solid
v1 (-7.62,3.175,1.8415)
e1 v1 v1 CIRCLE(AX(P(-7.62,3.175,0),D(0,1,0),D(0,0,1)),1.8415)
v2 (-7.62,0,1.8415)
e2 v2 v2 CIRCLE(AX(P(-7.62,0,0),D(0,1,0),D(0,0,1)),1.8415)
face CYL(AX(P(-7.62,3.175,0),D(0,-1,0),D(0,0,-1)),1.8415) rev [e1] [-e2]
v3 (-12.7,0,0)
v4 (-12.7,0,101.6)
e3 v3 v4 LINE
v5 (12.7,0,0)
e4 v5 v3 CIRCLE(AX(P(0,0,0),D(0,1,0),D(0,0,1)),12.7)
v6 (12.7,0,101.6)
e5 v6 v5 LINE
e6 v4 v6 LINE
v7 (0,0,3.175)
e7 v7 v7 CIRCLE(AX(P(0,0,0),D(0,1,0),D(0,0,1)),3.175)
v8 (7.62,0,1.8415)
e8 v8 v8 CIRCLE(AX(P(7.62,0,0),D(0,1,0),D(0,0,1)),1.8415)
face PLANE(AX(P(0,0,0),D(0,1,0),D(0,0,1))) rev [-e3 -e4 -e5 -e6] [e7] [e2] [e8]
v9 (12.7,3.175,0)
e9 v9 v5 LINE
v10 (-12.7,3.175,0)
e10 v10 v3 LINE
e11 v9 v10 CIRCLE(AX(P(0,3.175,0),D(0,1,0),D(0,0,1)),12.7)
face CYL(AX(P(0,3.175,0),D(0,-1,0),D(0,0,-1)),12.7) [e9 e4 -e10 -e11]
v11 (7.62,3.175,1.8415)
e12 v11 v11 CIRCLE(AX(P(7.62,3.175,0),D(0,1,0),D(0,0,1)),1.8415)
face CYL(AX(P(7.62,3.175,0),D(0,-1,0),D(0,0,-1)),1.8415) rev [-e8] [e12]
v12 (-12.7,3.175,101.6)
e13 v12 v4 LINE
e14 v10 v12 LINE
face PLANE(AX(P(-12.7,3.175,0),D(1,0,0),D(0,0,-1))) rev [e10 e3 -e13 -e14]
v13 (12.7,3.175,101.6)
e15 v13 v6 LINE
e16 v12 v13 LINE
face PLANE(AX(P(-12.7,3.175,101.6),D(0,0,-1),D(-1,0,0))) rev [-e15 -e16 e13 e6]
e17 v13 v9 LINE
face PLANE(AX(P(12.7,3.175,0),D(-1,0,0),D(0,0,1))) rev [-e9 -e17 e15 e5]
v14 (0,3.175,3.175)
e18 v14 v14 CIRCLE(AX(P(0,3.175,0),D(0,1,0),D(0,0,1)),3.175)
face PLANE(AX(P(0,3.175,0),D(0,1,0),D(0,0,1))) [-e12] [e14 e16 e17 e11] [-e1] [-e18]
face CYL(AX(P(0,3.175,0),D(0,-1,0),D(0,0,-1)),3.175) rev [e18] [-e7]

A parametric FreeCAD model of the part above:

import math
import FreeCAD as App
import Part
import Sketcher

V = App.Vector
Q = App.Units.Quantity

doc = App.newDocument("Part")
body = doc.addObject("PartDesign::Body", "Body")

# Sketch on XZ plane
sketch1 = doc.addObject("Sketcher::SketchObject", "Sketch")
body.addObject(sketch1)
sketch1.AttachmentSupport = (doc.XZ_Plane, [""])
sketch1.MapMode = "FlatFace"
sketch1.addGeometry([
    Part.LineSegment(V(-12.7, 0, 0), V(-12.7, 101.6, 0)),  # 0
    Part.LineSegment(V(-12.7, 101.6, 0), V(12.7, 101.6, 0)),  # 1
    Part.LineSegment(V(12.7, 101.6, 0), V(12.7, 0, 0)),  # 2
    Part.ArcOfCircle(Part.Circle(V(0, 0, 0), V(0, 0, 1), 12.7), math.radians(180), math.radians(360)),  # 3
    Part.Circle(V(-7.6, 0, 0), V(0, 0, 1), 1.8),  # 4
    Part.Circle(V(0, 0, 0), V(0, 0, 1), 3.2),  # 5
    Part.Circle(V(7.6, 0, 0), V(0, 0, 1), 1.8),  # 6
], False)
sketch1.addConstraint([
    Sketcher.Constraint("Coincident", 0, 2, 1, 1),
    Sketcher.Constraint("Coincident", 1, 2, 2, 1),
    Sketcher.Constraint("Tangent", 2, 2, 3, 2),
    Sketcher.Constraint("Tangent", 3, 1, 0, 1),
    Sketcher.Constraint("Vertical", 0),
    Sketcher.Constraint("Horizontal", 1),
    Sketcher.Constraint("Vertical", 2),
    Sketcher.Constraint("Coincident", 3, 3, -1, 1),
    Sketcher.Constraint("Coincident", 5, 3, -1, 1),
    Sketcher.Constraint("Equal", 4, 6),
    Sketcher.Constraint("Symmetric", 4, 3, 6, 3, -1, 1),
    Sketcher.Constraint("PointOnObject", 4, 3, -1),
    Sketcher.Constraint("Radius", 3, Q("0.5 in")),
    Sketcher.Constraint("Diameter", 5, Q("0.25 in")),
    Sketcher.Constraint("DistanceY", 0, 1, 0, 2, Q("4 in")),
    Sketcher.Constraint("Diameter", 4, Q("0.145 in")),
    Sketcher.Constraint("DistanceX", 4, 3, -1, 1, Q("0.3 in")),
])
pad1 = doc.addObject("PartDesign::Pad", "Pad")
body.addObject(pad1)
pad1.Profile = sketch1
pad1.Length = Q("0.125 in")
pad1.Reversed = True

doc.recompute()
